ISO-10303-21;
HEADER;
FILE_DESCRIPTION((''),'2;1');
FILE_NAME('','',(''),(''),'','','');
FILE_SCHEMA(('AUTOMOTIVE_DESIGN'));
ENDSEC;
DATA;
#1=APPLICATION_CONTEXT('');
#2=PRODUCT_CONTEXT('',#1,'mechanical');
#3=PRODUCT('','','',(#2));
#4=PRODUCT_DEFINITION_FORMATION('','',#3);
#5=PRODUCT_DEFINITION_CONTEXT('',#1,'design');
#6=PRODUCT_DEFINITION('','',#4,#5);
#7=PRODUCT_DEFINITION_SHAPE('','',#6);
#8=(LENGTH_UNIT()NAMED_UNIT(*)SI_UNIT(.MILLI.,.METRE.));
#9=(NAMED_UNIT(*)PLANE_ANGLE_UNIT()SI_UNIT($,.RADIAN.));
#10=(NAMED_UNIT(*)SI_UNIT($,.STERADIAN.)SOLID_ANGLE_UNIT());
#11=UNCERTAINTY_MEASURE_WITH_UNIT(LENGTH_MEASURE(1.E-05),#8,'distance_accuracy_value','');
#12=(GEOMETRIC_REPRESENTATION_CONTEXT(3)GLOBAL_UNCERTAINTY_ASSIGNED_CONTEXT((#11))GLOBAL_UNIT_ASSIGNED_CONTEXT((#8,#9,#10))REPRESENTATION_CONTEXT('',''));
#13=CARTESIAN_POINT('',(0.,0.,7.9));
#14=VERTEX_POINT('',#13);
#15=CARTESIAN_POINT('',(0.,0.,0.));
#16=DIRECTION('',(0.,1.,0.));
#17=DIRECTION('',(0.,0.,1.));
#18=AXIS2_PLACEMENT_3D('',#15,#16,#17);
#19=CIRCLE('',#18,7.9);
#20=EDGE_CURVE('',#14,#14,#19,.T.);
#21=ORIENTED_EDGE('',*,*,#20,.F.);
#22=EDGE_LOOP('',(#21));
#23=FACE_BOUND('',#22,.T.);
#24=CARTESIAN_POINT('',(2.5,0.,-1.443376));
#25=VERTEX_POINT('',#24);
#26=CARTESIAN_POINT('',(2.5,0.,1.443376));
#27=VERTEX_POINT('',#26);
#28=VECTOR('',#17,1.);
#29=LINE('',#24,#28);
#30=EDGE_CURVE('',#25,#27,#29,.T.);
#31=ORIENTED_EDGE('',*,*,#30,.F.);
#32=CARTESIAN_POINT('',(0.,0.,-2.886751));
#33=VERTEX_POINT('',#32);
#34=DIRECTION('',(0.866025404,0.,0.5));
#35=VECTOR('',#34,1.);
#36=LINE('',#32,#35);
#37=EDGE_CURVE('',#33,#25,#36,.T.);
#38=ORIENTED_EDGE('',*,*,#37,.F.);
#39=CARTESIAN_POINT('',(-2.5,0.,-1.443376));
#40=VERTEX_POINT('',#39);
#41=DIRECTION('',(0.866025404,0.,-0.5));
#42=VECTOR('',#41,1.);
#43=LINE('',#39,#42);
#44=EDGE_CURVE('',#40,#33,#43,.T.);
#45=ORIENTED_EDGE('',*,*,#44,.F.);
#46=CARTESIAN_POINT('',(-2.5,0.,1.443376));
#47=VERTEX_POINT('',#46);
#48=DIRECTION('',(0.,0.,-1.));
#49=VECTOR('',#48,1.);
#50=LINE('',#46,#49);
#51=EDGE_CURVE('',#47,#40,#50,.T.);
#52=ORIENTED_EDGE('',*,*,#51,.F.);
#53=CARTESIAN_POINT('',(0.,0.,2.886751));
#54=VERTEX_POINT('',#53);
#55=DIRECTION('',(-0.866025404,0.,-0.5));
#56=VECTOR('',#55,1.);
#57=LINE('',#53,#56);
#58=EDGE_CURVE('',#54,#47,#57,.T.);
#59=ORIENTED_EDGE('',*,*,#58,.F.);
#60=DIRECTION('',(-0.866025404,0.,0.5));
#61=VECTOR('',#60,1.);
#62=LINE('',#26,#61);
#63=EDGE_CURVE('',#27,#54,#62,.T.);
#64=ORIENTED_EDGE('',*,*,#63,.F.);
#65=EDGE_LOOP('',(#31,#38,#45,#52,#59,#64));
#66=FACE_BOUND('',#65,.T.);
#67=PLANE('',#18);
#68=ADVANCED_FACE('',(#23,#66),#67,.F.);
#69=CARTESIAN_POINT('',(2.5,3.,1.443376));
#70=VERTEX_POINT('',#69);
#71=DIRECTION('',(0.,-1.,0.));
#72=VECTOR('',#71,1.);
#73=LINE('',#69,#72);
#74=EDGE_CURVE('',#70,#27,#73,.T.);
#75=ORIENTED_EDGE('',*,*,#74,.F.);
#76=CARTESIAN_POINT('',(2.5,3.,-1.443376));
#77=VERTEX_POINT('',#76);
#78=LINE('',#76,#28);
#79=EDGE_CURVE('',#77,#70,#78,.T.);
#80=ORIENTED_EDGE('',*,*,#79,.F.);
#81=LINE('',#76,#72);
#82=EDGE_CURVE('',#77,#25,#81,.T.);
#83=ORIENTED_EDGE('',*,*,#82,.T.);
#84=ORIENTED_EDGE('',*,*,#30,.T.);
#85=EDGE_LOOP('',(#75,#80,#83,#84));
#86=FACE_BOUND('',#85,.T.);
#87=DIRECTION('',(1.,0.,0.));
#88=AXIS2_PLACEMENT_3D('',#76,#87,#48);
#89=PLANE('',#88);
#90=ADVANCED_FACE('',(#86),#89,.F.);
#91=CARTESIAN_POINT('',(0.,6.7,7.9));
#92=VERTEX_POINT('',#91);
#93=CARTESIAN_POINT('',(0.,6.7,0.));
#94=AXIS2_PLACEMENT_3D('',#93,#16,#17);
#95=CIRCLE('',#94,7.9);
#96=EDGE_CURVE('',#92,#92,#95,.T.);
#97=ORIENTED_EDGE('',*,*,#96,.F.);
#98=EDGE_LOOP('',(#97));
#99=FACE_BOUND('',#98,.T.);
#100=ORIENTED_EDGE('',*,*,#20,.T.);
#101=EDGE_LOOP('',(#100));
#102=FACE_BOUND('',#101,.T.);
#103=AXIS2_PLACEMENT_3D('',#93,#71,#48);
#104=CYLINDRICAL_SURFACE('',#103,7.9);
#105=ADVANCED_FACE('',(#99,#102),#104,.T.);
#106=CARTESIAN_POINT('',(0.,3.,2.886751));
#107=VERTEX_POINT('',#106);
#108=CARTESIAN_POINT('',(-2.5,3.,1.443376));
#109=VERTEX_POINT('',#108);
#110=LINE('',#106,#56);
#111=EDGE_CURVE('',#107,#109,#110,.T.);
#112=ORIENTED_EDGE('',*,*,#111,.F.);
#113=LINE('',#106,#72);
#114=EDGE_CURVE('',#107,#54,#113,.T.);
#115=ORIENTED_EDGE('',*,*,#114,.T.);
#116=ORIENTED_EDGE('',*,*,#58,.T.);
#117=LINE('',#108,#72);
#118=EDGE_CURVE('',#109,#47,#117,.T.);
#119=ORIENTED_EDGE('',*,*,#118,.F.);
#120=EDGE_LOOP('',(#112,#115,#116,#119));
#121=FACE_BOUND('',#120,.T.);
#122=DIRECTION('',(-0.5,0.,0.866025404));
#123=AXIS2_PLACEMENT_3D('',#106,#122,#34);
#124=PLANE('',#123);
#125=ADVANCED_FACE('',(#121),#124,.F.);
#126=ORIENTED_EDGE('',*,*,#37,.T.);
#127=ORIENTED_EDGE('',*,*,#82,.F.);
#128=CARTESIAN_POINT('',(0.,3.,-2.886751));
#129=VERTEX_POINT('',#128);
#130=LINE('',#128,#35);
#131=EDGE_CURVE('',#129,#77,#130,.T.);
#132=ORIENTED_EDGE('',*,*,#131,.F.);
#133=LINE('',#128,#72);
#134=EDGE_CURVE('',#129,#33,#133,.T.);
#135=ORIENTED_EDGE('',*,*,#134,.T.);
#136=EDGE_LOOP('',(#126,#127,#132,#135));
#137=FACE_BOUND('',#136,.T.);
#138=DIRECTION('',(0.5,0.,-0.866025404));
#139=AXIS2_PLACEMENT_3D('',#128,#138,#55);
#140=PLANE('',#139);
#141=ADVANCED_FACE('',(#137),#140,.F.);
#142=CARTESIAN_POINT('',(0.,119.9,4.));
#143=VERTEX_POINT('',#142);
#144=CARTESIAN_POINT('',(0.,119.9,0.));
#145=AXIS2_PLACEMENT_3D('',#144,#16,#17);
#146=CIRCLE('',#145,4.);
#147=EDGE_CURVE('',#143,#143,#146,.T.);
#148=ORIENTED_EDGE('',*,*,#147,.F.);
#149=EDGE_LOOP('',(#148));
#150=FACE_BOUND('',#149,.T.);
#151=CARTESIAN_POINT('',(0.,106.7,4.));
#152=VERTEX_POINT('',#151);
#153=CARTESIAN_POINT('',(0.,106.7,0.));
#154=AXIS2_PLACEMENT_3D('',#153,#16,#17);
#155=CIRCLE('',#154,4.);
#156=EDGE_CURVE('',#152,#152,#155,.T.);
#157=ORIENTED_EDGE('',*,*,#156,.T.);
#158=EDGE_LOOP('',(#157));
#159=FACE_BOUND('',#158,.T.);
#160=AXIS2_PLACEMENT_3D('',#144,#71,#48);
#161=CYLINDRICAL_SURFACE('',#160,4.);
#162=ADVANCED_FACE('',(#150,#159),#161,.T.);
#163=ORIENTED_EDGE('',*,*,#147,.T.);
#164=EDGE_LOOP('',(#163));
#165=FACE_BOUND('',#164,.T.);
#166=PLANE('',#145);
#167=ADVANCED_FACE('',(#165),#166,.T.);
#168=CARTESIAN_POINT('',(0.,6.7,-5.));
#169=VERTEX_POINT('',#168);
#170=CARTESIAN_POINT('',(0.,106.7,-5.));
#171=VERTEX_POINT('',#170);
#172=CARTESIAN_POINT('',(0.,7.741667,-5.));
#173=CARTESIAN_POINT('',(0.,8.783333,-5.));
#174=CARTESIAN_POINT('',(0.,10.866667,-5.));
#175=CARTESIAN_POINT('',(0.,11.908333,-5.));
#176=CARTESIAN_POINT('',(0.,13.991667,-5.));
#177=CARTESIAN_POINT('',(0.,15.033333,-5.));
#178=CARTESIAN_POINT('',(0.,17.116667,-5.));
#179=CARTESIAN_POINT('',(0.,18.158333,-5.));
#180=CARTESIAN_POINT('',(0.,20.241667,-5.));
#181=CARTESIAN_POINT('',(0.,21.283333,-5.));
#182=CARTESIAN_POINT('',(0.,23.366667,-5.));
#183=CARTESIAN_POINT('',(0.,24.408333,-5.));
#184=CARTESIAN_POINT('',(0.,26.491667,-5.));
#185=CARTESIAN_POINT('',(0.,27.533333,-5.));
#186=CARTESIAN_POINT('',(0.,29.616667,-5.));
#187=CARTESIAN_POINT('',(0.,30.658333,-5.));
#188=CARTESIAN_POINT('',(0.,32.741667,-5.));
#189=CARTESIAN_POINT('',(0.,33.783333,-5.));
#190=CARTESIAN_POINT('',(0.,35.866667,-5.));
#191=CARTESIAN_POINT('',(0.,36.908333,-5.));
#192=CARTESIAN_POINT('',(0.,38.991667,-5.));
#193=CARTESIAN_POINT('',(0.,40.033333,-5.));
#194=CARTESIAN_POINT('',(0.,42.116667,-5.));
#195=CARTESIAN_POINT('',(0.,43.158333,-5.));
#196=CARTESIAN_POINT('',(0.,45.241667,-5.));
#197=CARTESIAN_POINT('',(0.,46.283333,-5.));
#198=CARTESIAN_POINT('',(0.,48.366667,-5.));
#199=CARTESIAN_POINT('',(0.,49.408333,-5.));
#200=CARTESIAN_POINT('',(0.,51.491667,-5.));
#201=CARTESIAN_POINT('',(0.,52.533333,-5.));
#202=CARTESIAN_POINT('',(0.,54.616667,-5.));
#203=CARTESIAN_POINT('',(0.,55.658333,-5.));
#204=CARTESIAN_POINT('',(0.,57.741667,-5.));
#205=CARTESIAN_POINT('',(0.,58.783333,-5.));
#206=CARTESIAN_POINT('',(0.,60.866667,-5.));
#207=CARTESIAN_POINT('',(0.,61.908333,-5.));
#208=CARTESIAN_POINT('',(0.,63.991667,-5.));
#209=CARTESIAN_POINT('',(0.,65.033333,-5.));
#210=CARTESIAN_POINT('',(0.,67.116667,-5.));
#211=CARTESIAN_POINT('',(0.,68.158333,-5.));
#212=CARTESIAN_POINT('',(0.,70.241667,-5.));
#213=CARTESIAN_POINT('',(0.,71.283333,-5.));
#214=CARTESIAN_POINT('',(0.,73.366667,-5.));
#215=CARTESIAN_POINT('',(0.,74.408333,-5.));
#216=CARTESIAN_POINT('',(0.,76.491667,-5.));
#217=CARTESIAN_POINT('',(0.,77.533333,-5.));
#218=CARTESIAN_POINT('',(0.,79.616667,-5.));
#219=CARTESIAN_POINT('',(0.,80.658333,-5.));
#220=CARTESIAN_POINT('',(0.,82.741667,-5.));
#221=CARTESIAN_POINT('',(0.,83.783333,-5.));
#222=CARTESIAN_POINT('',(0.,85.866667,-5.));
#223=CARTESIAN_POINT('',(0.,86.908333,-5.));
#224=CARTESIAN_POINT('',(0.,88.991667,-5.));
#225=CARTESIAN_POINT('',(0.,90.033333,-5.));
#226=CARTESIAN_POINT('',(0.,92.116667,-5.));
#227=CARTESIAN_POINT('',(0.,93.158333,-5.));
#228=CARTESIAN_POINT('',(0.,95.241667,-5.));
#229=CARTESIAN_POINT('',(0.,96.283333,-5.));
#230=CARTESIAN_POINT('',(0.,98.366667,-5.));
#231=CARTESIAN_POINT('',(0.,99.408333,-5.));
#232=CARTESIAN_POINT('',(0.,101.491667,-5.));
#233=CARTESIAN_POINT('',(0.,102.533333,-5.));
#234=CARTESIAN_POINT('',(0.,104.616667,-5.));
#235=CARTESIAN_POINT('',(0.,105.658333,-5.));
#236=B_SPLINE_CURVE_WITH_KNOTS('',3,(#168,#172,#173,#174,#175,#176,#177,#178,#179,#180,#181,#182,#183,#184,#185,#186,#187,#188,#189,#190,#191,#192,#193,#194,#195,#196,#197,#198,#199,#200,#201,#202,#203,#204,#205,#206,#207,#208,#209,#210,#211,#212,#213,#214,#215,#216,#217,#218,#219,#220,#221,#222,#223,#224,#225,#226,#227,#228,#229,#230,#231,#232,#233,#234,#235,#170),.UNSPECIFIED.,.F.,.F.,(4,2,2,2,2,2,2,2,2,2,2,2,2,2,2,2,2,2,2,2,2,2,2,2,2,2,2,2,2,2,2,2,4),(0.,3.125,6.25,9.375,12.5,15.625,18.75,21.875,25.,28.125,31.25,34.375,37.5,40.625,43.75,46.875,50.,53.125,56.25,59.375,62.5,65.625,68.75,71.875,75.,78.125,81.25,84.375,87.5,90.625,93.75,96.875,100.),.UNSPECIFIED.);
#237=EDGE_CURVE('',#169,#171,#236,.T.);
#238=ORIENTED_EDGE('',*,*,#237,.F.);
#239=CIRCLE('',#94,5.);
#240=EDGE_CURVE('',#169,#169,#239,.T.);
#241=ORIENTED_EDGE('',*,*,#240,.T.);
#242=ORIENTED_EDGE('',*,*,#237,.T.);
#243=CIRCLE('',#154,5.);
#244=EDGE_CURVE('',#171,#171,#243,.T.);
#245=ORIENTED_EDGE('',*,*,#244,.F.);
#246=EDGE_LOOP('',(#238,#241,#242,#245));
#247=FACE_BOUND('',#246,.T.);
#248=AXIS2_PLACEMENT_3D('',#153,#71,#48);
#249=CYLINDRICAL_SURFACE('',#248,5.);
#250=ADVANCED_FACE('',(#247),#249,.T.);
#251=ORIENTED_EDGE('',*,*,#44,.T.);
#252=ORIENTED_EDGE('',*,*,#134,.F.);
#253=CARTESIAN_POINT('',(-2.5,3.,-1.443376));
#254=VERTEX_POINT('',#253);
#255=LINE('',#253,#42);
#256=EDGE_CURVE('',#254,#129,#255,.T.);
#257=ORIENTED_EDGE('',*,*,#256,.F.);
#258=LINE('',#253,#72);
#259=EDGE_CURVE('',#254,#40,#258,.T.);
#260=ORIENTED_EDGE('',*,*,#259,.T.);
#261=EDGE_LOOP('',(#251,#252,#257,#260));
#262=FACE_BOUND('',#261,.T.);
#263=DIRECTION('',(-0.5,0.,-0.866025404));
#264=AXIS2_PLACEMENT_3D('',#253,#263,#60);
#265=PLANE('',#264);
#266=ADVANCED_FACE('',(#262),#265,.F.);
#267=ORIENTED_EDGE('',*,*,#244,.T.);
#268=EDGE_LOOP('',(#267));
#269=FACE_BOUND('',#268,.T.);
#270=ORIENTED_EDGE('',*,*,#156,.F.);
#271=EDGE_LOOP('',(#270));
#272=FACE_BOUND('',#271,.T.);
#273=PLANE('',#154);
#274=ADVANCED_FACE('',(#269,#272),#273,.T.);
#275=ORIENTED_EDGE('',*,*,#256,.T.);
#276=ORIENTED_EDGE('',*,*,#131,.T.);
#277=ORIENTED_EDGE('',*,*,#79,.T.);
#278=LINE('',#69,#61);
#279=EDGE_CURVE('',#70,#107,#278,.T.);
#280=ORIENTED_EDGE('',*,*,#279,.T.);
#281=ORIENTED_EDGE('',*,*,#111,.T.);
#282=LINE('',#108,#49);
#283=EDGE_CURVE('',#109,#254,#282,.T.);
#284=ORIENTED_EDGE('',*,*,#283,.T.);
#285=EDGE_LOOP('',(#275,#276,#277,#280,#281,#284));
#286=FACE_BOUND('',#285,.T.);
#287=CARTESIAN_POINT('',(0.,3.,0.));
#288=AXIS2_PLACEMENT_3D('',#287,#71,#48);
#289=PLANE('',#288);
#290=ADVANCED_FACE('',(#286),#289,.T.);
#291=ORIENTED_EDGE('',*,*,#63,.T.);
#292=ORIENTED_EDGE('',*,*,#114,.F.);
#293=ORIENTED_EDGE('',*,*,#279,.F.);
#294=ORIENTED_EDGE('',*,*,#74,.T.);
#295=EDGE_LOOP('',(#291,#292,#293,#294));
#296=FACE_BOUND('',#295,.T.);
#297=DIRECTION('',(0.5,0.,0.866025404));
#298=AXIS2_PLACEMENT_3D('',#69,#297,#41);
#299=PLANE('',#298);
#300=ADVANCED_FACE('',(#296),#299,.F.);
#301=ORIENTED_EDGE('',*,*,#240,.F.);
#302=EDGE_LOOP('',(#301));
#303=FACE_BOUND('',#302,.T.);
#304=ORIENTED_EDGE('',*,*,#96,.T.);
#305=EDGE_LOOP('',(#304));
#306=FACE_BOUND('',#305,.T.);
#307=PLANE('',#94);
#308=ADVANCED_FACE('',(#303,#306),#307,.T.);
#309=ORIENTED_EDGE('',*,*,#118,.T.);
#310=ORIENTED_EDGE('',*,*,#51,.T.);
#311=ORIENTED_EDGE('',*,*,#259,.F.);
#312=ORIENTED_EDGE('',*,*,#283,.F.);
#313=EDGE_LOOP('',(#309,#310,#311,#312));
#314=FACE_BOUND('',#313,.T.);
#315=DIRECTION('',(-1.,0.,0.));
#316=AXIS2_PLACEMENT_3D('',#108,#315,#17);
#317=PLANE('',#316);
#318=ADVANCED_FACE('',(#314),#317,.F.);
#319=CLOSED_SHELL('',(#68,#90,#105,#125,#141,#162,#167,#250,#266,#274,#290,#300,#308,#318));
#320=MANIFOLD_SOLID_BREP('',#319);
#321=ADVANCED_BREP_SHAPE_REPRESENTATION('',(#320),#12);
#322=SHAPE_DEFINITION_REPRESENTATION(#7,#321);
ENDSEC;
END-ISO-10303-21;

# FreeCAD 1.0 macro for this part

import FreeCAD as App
import Part
import Sketcher

V = App.Vector
Q = App.Units.Quantity

doc = App.newDocument("Part")
params = doc.addObject("Spreadsheet::Sheet", "Params")
for row, (alias, value) in enumerate([
    ("sketch1_diameter", "8 mm"),
    ("pad1_length", "119.9 mm"),
    ("sketch2_diameter", "10 mm"),
    ("sketch2_diameter2", "8 mm"),
    ("pad2_length", "106.7 mm"),
    ("sketch3_diameter", "10 mm"),
    ("sketch3_diameter2", "15.8 mm"),
    ("pad3_length", "6.7 mm"),
    ("pocket1_length", "3 mm"),
], start=1):
    params.set(f"A{row}", alias)
    params.set(f"B{row}", "=" + value)
    params.setAlias(f"B{row}", alias)

body = doc.addObject("PartDesign::Body", "Body")

sketch1 = body.newObject("Sketcher::SketchObject", "Sketch")
sketch1.AttachmentSupport = (doc.getObject("XZ_Plane"), [""])
sketch1.MapMode = "FlatFace"
sketch1.addGeometry(Part.Circle(V(0, 0, 0), V(0, 0, 1), 4), False)
sketch1.addConstraint([
    Sketcher.Constraint("Coincident", 0, 3, -1, 1),
    Sketcher.Constraint("Diameter", 0, Q("8 mm")),
])
sketch1.setExpression("Constraints[1]", "Params.sketch1_diameter")
pad1 = body.newObject("PartDesign::Pad", "Pad")
pad1.Profile = sketch1
pad1.setExpression("Length", "Params.pad1_length")
pad1.Reversed = True

sketch2 = body.newObject("Sketcher::SketchObject", "Sketch001")
sketch2.AttachmentSupport = (doc.getObject("XZ_Plane"), [""])
sketch2.MapMode = "FlatFace"
sketch2.addGeometry([
    Part.Circle(V(0, 0, 0), V(0, 0, 1), 5),
    Part.Circle(V(0, 0, 0), V(0, 0, 1), 4),
], False)
sketch2.addConstraint([
    Sketcher.Constraint("Coincident", 0, 3, -1, 1),
    Sketcher.Constraint("Coincident", 1, 3, -1, 1),
    Sketcher.Constraint("Diameter", 0, Q("10 mm")),
    Sketcher.Constraint("Diameter", 1, Q("8 mm")),
])
sketch2.setExpression("Constraints[2]", "Params.sketch2_diameter")
sketch2.setExpression("Constraints[3]", "Params.sketch2_diameter2")
pad2 = body.newObject("PartDesign::Pad", "Pad001")
pad2.Profile = sketch2
pad2.setExpression("Length", "Params.pad2_length")
pad2.Reversed = True

sketch3 = body.newObject("Sketcher::SketchObject", "Sketch002")
sketch3.AttachmentSupport = (doc.getObject("XZ_Plane"), [""])
sketch3.MapMode = "FlatFace"
sketch3.addGeometry([
    Part.Circle(V(0, 0, 0), V(0, 0, 1), 8),
    Part.Circle(V(0, 0, 0), V(0, 0, 1), 5),
], False)
sketch3.addConstraint([
    Sketcher.Constraint("Coincident", 0, 3, -1, 1),
    Sketcher.Constraint("Coincident", 1, 3, -1, 1),
    Sketcher.Constraint("Diameter", 1, Q("10 mm")),
    Sketcher.Constraint("Diameter", 0, Q("15.8 mm")),
])
sketch3.setExpression("Constraints[2]", "Params.sketch3_diameter")
sketch3.setExpression("Constraints[3]", "Params.sketch3_diameter2")
pad3 = body.newObject("PartDesign::Pad", "Pad002")
pad3.Profile = sketch3
pad3.setExpression("Length", "Params.pad3_length")
pad3.Reversed = True

sketch4 = body.newObject("Sketcher::SketchObject", "Sketch003")
sketch4.AttachmentSupport = (doc.getObject("XZ_Plane"), [""])
sketch4.MapMode = "FlatFace"
sketch4.addGeometry([
    Part.LineSegment(V(2.5, 1.4, 0), V(0, 2.9, 0)),
    Part.LineSegment(V(0, 2.9, 0), V(-2.5, 1.4, 0)),
    Part.LineSegment(V(-2.5, 1.4, 0), V(-2.5, -1.4, 0)),
    Part.LineSegment(V(-2.5, -1.4, 0), V(0, -2.9, 0)),
    Part.LineSegment(V(0, -2.9, 0), V(2.5, -1.4, 0)),
    Part.LineSegment(V(2.5, -1.4, 0), V(2.5, 1.4, 0)),
], False)
sketch4.addConstraint([
    Sketcher.Constraint("Coincident", 0, 2, 1, 1),
    Sketcher.Constraint("Coincident", 1, 2, 2, 1),
    Sketcher.Constraint("Coincident", 2, 2, 3, 1),
    Sketcher.Constraint("Coincident", 3, 2, 4, 1),
    Sketcher.Constraint("Coincident", 4, 2, 5, 1),
    Sketcher.Constraint("Coincident", 5, 2, 0, 1),
    Sketcher.Constraint("Vertical", 2),
    Sketcher.Constraint("Vertical", 5),
    Sketcher.Constraint("Symmetric", 0, 2, 3, 2, -1, 1),
    Sketcher.Constraint("Symmetric", 1, 2, 4, 2, -1, 1),
    Sketcher.Constraint("PointOnObject", 0, 2, -2),
    Sketcher.Constraint("Parallel", 0, 3),
    Sketcher.Constraint("Horizontal", 2, 2, 4, 2),
    Sketcher.Constraint("Angle", 0, Q("150 deg")),
    Sketcher.Constraint("DistanceX", 2, 2, 4, 2, Q("5 mm")),
    Sketcher.Constraint("DistanceY", 2, 2, 2, 1, Q("2.886751 mm")),
])
pocket1 = body.newObject("PartDesign::Pocket", "Pocket")
pocket1.Profile = sketch4
pocket1.setExpression("Length", "Params.pocket1_length")

doc.recompute()
